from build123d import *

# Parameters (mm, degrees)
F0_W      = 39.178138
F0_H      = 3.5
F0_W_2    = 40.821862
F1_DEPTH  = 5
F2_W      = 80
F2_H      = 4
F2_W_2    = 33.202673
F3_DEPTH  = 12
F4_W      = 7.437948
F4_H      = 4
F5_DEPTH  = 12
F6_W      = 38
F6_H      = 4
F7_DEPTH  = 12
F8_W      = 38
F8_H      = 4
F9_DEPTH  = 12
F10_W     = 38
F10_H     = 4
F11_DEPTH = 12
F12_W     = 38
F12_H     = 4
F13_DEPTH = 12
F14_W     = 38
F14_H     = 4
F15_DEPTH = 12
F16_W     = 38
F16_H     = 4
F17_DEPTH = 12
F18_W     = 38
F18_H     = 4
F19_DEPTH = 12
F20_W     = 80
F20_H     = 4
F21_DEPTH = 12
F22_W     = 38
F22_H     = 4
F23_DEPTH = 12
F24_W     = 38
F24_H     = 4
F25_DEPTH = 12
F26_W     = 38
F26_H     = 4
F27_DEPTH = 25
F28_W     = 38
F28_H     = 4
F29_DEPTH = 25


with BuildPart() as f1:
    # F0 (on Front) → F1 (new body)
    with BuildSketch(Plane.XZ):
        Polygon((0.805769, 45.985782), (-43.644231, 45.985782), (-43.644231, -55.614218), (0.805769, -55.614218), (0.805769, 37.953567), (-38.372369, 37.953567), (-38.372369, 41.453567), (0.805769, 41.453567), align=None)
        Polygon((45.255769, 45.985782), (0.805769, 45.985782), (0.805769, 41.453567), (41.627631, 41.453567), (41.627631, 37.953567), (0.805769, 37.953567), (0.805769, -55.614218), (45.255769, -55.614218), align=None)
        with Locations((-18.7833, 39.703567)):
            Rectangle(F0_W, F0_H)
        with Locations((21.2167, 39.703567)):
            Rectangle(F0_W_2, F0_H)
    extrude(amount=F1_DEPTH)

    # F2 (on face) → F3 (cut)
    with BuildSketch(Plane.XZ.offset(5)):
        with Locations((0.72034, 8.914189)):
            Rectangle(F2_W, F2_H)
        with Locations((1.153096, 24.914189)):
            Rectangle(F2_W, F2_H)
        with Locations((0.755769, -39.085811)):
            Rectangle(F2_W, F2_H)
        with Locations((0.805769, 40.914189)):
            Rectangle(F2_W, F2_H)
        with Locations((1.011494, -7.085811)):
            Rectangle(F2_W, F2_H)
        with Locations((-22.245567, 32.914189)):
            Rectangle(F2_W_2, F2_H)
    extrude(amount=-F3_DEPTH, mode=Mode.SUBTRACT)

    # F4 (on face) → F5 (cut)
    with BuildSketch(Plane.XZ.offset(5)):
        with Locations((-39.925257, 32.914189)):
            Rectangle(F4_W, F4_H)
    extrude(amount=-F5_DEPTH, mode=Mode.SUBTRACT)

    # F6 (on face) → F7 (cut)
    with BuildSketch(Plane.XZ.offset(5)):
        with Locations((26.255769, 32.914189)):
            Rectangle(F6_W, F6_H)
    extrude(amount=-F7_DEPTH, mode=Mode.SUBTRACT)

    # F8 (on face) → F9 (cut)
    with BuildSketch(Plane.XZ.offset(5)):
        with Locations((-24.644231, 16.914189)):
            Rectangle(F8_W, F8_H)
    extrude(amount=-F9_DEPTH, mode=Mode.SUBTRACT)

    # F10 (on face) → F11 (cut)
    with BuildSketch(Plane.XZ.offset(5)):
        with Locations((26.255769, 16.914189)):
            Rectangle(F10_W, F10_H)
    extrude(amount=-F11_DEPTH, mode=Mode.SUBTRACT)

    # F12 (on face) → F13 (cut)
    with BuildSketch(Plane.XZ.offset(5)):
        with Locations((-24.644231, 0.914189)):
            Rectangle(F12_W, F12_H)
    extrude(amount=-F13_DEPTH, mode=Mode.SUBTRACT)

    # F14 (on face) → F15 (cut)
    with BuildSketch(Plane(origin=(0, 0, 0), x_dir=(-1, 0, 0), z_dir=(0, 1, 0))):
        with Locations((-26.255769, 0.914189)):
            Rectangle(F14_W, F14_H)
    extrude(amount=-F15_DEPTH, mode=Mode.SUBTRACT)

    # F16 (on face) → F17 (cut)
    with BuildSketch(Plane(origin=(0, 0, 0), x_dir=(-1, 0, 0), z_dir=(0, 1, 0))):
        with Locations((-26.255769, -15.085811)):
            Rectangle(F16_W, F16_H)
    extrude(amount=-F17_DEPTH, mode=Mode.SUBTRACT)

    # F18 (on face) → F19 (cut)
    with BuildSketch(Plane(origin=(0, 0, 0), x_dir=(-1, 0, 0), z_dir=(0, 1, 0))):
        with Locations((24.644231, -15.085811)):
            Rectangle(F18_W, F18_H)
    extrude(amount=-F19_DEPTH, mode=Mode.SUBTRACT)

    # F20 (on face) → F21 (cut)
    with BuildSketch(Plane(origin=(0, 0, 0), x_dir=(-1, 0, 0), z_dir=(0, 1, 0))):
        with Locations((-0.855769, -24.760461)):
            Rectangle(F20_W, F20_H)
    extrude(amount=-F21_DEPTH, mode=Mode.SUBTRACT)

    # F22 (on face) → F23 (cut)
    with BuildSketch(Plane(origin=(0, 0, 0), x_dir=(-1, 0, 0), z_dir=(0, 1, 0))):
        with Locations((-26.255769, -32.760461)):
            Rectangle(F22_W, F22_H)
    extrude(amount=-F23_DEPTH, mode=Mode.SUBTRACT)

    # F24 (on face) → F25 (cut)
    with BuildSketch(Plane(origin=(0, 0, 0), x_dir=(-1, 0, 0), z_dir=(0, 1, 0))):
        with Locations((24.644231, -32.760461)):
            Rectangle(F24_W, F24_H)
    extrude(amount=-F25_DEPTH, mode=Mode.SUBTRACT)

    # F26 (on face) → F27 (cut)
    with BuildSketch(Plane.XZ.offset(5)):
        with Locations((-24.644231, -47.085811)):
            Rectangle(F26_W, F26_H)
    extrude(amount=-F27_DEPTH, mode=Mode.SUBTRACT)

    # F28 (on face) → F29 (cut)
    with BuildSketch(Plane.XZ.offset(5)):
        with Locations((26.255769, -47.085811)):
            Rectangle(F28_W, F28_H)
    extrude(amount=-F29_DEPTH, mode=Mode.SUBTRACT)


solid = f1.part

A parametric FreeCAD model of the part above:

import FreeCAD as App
import Part
import Sketcher

V = App.Vector
Q = App.Units.Quantity

doc = App.newDocument("Part")
body = doc.addObject("PartDesign::Body", "Body")

# Sketch on XZ plane
sketch1 = doc.addObject("Sketcher::SketchObject", "Sketch")
body.addObject(sketch1)
sketch1.AttachmentSupport = (doc.XZ_Plane, [""])
sketch1.MapMode = "FlatFace"
sketch1.addGeometry([
    Part.LineSegment(V(-43.644231, 45.985782, 0), V(-43.644231, -55.614218, 0)),
    Part.LineSegment(V(-43.644231, -55.614218, 0), V(45.255769, -55.614218, 0)),
    Part.LineSegment(V(45.255769, -55.614218, 0), V(45.255769, 45.985782, 0)),
    Part.LineSegment(V(45.255769, 45.985782, 0), V(-43.644231, 45.985782, 0)),
], False)
sketch1.addConstraint([
    Sketcher.Constraint("Coincident", 0, 2, 1, 1),
    Sketcher.Constraint("Coincident", 1, 2, 2, 1),
    Sketcher.Constraint("Coincident", 2, 2, 3, 1),
    Sketcher.Constraint("Coincident", 3, 2, 0, 1),
    Sketcher.Constraint("Vertical", 0),
    Sketcher.Constraint("Horizontal", 1),
    Sketcher.Constraint("Vertical", 2),
    Sketcher.Constraint("Horizontal", 3),
    Sketcher.Constraint("DistanceX", 1, 1, 1, 2, Q("88.9 mm")),
    Sketcher.Constraint("DistanceY", 0, 2, 0, 1, Q("101.6 mm")),
    Sketcher.Constraint("DistanceX", 0, 2, -1, 1, Q("43.644231 mm")),
    Sketcher.Constraint("DistanceY", 0, 2, -1, 1, Q("55.614218 mm")),
])
pad1 = doc.addObject("PartDesign::Pad", "Pad")
body.addObject(pad1)
pad1.Profile = sketch1
pad1.Length = 5

# Sketch on XZ plane
sketch2 = doc.addObject("Sketcher::SketchObject", "Sketch001")
body.addObject(sketch2)
sketch2.AttachmentSupport = (doc.XZ_Plane, [""])
sketch2.MapMode = "FlatFace"
sketch2.AttachmentOffset = App.Placement(V(0, 0, 5), App.Rotation())
sketch2.addGeometry([
    Part.LineSegment(V(-39.27966, 10.914189, 0), V(-39.27966, 6.914189, 0)),  # 0
    Part.LineSegment(V(-39.27966, 6.914189, 0), V(40.72034, 6.914189, 0)),  # 1
    Part.LineSegment(V(40.72034, 6.914189, 0), V(40.72034, 10.914189, 0)),  # 2
    Part.LineSegment(V(40.72034, 10.914189, 0), V(-39.27966, 10.914189, 0)),  # 3
    Part.LineSegment(V(-38.846904, 26.914189, 0), V(-38.846904, 22.914189, 0)),  # 4
    Part.LineSegment(V(-38.846904, 22.914189, 0), V(41.153096, 22.914189, 0)),  # 5
    Part.LineSegment(V(41.153096, 22.914189, 0), V(41.153096, 26.914189, 0)),  # 6
    Part.LineSegment(V(41.153096, 26.914189, 0), V(-38.846904, 26.914189, 0)),  # 7
    Part.LineSegment(V(-39.244231, -37.085811, 0), V(-39.244231, -41.085811, 0)),  # 8
    Part.LineSegment(V(-39.244231, -41.085811, 0), V(40.755769, -41.085811, 0)),  # 9
    Part.LineSegment(V(40.755769, -41.085811, 0), V(40.755769, -37.085811, 0)),  # 10
    Part.LineSegment(V(40.755769, -37.085811, 0), V(-39.244231, -37.085811, 0)),  # 11
    Part.LineSegment(V(-39.194231, 42.914189, 0), V(-39.194231, 38.914189, 0)),  # 12
    Part.LineSegment(V(-39.194231, 38.914189, 0), V(40.805769, 38.914189, 0)),  # 13
    Part.LineSegment(V(40.805769, 38.914189, 0), V(40.805769, 42.914189, 0)),  # 14
    Part.LineSegment(V(40.805769, 42.914189, 0), V(-39.194231, 42.914189, 0)),  # 15
    Part.LineSegment(V(-38.988506, -5.085811, 0), V(-38.988506, -9.085811, 0)),  # 16
    Part.LineSegment(V(-38.988506, -9.085811, 0), V(41.011494, -9.085811, 0)),  # 17
    Part.LineSegment(V(41.011494, -9.085811, 0), V(41.011494, -5.085811, 0)),  # 18
    Part.LineSegment(V(41.011494, -5.085811, 0), V(-38.988506, -5.085811, 0)),  # 19
    Part.LineSegment(V(-38.846904, 34.914189, 0), V(-38.846904, 30.914189, 0)),  # 20
    Part.LineSegment(V(-38.846904, 30.914189, 0), V(-5.64423, 30.914189, 0)),  # 21
    Part.LineSegment(V(-5.64423, 30.914189, 0), V(-5.64423, 34.914189, 0)),  # 22
    Part.LineSegment(V(-5.64423, 34.914189, 0), V(-38.846904, 34.914189, 0)),  # 23
], False)
sketch2.addConstraint([
    Sketcher.Constraint("Coincident", 0, 2, 1, 1),
    Sketcher.Constraint("Coincident", 1, 2, 2, 1),
    Sketcher.Constraint("Coincident", 2, 2, 3, 1),
    Sketcher.Constraint("Coincident", 3, 2, 0, 1),
    Sketcher.Constraint("Coincident", 4, 2, 5, 1),
    Sketcher.Constraint("Coincident", 5, 2, 6, 1),
    Sketcher.Constraint("Coincident", 6, 2, 7, 1),
    Sketcher.Constraint("Coincident", 7, 2, 4, 1),
    Sketcher.Constraint("Coincident", 8, 2, 9, 1),
    Sketcher.Constraint("Coincident", 9, 2, 10, 1),
    Sketcher.Constraint("Coincident", 10, 2, 11, 1),
    Sketcher.Constraint("Coincident", 11, 2, 8, 1),
    Sketcher.Constraint("Coincident", 12, 2, 13, 1),
    Sketcher.Constraint("Coincident", 13, 2, 14, 1),
    Sketcher.Constraint("Coincident", 14, 2, 15, 1),
    Sketcher.Constraint("Coincident", 15, 2, 12, 1),
    Sketcher.Constraint("Coincident", 16, 2, 17, 1),
    Sketcher.Constraint("Coincident", 17, 2, 18, 1),
    Sketcher.Constraint("Coincident", 18, 2, 19, 1),
    Sketcher.Constraint("Coincident", 19, 2, 16, 1),
    Sketcher.Constraint("Coincident", 20, 2, 21, 1),
    Sketcher.Constraint("Coincident", 21, 2, 22, 1),
    Sketcher.Constraint("Coincident", 22, 2, 23, 1),
    Sketcher.Constraint("Coincident", 23, 2, 20, 1),
    Sketcher.Constraint("Vertical", 0),
    Sketcher.Constraint("Horizontal", 1),
    Sketcher.Constraint("Vertical", 2),
    Sketcher.Constraint("Horizontal", 3),
    Sketcher.Constraint("Vertical", 4),
    Sketcher.Constraint("Horizontal", 5),
    Sketcher.Constraint("Vertical", 6),
    Sketcher.Constraint("Horizontal", 7),
    Sketcher.Constraint("Vertical", 8),
    Sketcher.Constraint("Horizontal", 9),
    Sketcher.Constraint("Vertical", 10),
    Sketcher.Constraint("Horizontal", 11),
    Sketcher.Constraint("Vertical", 12),
    Sketcher.Constraint("Horizontal", 13),
    Sketcher.Constraint("Vertical", 14),
    Sketcher.Constraint("Horizontal", 15),
    Sketcher.Constraint("Vertical", 16),
    Sketcher.Constraint("Horizontal", 17),
    Sketcher.Constraint("Vertical", 18),
    Sketcher.Constraint("Horizontal", 19),
    Sketcher.Constraint("Vertical", 20),
    Sketcher.Constraint("Horizontal", 21),
    Sketcher.Constraint("Vertical", 22),
    Sketcher.Constraint("Horizontal", 23),
    Sketcher.Constraint("Vertical", 7, 2, 20, 2),
    Sketcher.Constraint("Equal", 3, 5),
    Sketcher.Constraint("Equal", 7, 9),
    Sketcher.Constraint("Equal", 11, 13),
    Sketcher.Constraint("Equal", 15, 17),
    Sketcher.Constraint("Equal", 2, 4),
    Sketcher.Constraint("Equal", 6, 8),
    Sketcher.Constraint("Equal", 10, 12),
    Sketcher.Constraint("Equal", 14, 16),
    Sketcher.Constraint("Equal", 18, 20),
    Sketcher.Constraint("DistanceX", 1, 1, 1, 2, Q("80 mm")),
    Sketcher.Constraint("DistanceY", 0, 2, 0, 1, Q("4 mm")),
    Sketcher.Constraint("DistanceY", 3, 2, 4, 2, Q("12 mm")),
    Sketcher.Constraint("DistanceY", 8, 2, 0, 2, Q("48 mm")),
    Sketcher.Constraint("DistanceY", 7, 2, 12, 2, Q("12 mm")),
    Sketcher.Constraint("DistanceY", 16, 2, 0, 2, Q("16 mm")),
    Sketcher.Constraint("DistanceY", 7, 2, 20, 2, Q("4 mm")),
    Sketcher.Constraint("DistanceX", 11, 2, 12, 2, Q("0.05 mm")),
    Sketcher.Constraint("DistanceX", 12, 2, 21, 2, Q("33.550001 mm")),
    Sketcher.Constraint("DistanceX", 16, 2, 4, 2, Q("0.141602 mm")),
    Sketcher.Constraint("DistanceX", 21, 1, 21, 2, Q("33.202673 mm")),
    Sketcher.Constraint("DistanceX", 0, 2, -1, 1, Q("39.27966 mm")),
    Sketcher.Constraint("DistanceY", -1, 1, 0, 2, Q("6.914189 mm")),
    Sketcher.Constraint("DistanceX", 8, 2, -1, 1, Q("39.244231 mm")),
])
pocket1 = doc.addObject("PartDesign::Pocket", "Pocket")
body.addObject(pocket1)
pocket1.Profile = sketch2
pocket1.Length = 12

# Sketch on XZ plane
sketch3 = doc.addObject("Sketcher::SketchObject", "Sketch002")
body.addObject(sketch3)
sketch3.AttachmentSupport = (doc.XZ_Plane, [""])
sketch3.MapMode = "FlatFace"
sketch3.AttachmentOffset = App.Placement(V(0, 0, 5), App.Rotation())
sketch3.addGeometry([
    Part.LineSegment(V(-43.644231, 34.914189, 0), V(-43.644231, 30.914189, 0)),
    Part.LineSegment(V(-43.644231, 30.914189, 0), V(-36.206283, 30.914189, 0)),
    Part.LineSegment(V(-36.206283, 30.914189, 0), V(-36.206283, 34.914189, 0)),
    Part.LineSegment(V(-36.206283, 34.914189, 0), V(-43.644231, 34.914189, 0)),
], False)
sketch3.addConstraint([
    Sketcher.Constraint("Coincident", 0, 2, 1, 1),
    Sketcher.Constraint("Coincident", 1, 2, 2, 1),
    Sketcher.Constraint("Coincident", 2, 2, 3, 1),
    Sketcher.Constraint("Coincident", 3, 2, 0, 1),
    Sketcher.Constraint("Vertical", 0),
    Sketcher.Constraint("Horizontal", 1),
    Sketcher.Constraint("Vertical", 2),
    Sketcher.Constraint("Horizontal", 3),
    Sketcher.Constraint("DistanceY", 0, 2, 0, 1, Q("4 mm")),
    Sketcher.Constraint("DistanceX", 1, 1, 1, 2, Q("7.437948 mm")),
    Sketcher.Constraint("DistanceX", 0, 2, -1, 1, Q("43.644231 mm")),
    Sketcher.Constraint("DistanceY", -1, 1, 0, 2, Q("30.914189 mm")),
])
pocket2 = doc.addObject("PartDesign::Pocket", "Pocket001")
body.addObject(pocket2)
pocket2.Profile = sketch3
pocket2.Length = 12

# Sketch on XZ plane
sketch4 = doc.addObject("Sketcher::SketchObject", "Sketch003")
body.addObject(sketch4)
sketch4.AttachmentSupport = (doc.XZ_Plane, [""])
sketch4.MapMode = "FlatFace"
sketch4.AttachmentOffset = App.Placement(V(0, 0, 5), App.Rotation())
sketch4.addGeometry([
    Part.LineSegment(V(7.255769, 34.914189, 0), V(7.255769, 30.914189, 0)),
    Part.LineSegment(V(7.255769, 30.914189, 0), V(45.255769, 30.914189, 0)),
    Part.LineSegment(V(45.255769, 30.914189, 0), V(45.255769, 34.914189, 0)),
    Part.LineSegment(V(45.255769, 34.914189, 0), V(7.255769, 34.914189, 0)),
], False)
sketch4.addConstraint([
    Sketcher.Constraint("Coincident", 0, 2, 1, 1),
    Sketcher.Constraint("Coincident", 1, 2, 2, 1),
    Sketcher.Constraint("Coincident", 2, 2, 3, 1),
    Sketcher.Constraint("Coincident", 3, 2, 0, 1),
    Sketcher.Constraint("Vertical", 0),
    Sketcher.Constraint("Horizontal", 1),
    Sketcher.Constraint("Vertical", 2),
    Sketcher.Constraint("Horizontal", 3),
    Sketcher.Constraint("DistanceX", 1, 1, 1, 2, Q("38 mm")),
    Sketcher.Constraint("DistanceY", 0, 2, 0, 1, Q("4 mm")),
    Sketcher.Constraint("DistanceX", -1, 1, 0, 2, Q("7.255769 mm")),
    Sketcher.Constraint("DistanceY", -1, 1, 0, 2, Q("30.914189 mm")),
])
pocket3 = doc.addObject("PartDesign::Pocket", "Pocket002")
body.addObject(pocket3)
pocket3.Profile = sketch4
pocket3.Length = 12

# Sketch on XZ plane
sketch5 = doc.addObject("Sketcher::SketchObject", "Sketch004")
body.addObject(sketch5)
sketch5.AttachmentSupport = (doc.XZ_Plane, [""])
sketch5.MapMode = "FlatFace"
sketch5.AttachmentOffset = App.Placement(V(0, 0, 5), App.Rotation())
sketch5.addGeometry([
    Part.LineSegment(V(-43.644231, 18.914189, 0), V(-43.644231, 14.914189, 0)),
    Part.LineSegment(V(-43.644231, 14.914189, 0), V(-5.644231, 14.914189, 0)),
    Part.LineSegment(V(-5.644231, 14.914189, 0), V(-5.644231, 18.914189, 0)),
    Part.LineSegment(V(-5.644231, 18.914189, 0), V(-43.644231, 18.914189, 0)),
], False)
sketch5.addConstraint([
    Sketcher.Constraint("Coincident", 0, 2, 1, 1),
    Sketcher.Constraint("Coincident", 1, 2, 2, 1),
    Sketcher.Constraint("Coincident", 2, 2, 3, 1),
    Sketcher.Constraint("Coincident", 3, 2, 0, 1),
    Sketcher.Constraint("Vertical", 0),
    Sketcher.Constraint("Horizontal", 1),
    Sketcher.Constraint("Vertical", 2),
    Sketcher.Constraint("Horizontal", 3),
    Sketcher.Constraint("DistanceX", 1, 1, 1, 2, Q("38 mm")),
    Sketcher.Constraint("DistanceY", 0, 2, 0, 1, Q("4 mm")),
    Sketcher.Constraint("DistanceX", 0, 2, -1, 1, Q("43.644231 mm")),
    Sketcher.Constraint("DistanceY", -1, 1, 0, 2, Q("14.914189 mm")),
])
pocket4 = doc.addObject("PartDesign::Pocket", "Pocket003")
body.addObject(pocket4)
pocket4.Profile = sketch5
pocket4.Length = 12

# Sketch on XZ plane
sketch6 = doc.addObject("Sketcher::SketchObject", "Sketch005")
body.addObject(sketch6)
sketch6.AttachmentSupport = (doc.XZ_Plane, [""])
sketch6.MapMode = "FlatFace"
sketch6.AttachmentOffset = App.Placement(V(0, 0, 5), App.Rotation())
sketch6.addGeometry([
    Part.LineSegment(V(7.255769, 18.914189, 0), V(7.255769, 14.914189, 0)),
    Part.LineSegment(V(7.255769, 14.914189, 0), V(45.255769, 14.914189, 0)),
    Part.LineSegment(V(45.255769, 14.914189, 0), V(45.255769, 18.914189, 0)),
    Part.LineSegment(V(45.255769, 18.914189, 0), V(7.255769, 18.914189, 0)),
], False)
sketch6.addConstraint([
    Sketcher.Constraint("Coincident", 0, 2, 1, 1),
    Sketcher.Constraint("Coincident", 1, 2, 2, 1),
    Sketcher.Constraint("Coincident", 2, 2, 3, 1),
    Sketcher.Constraint("Coincident", 3, 2, 0, 1),
    Sketcher.Constraint("Vertical", 0),
    Sketcher.Constraint("Horizontal", 1),
    Sketcher.Constraint("Vertical", 2),
    Sketcher.Constraint("Horizontal", 3),
    Sketcher.Constraint("DistanceX", 1, 1, 1, 2, Q("38 mm")),
    Sketcher.Constraint("DistanceY", 0, 2, 0, 1, Q("4 mm")),
    Sketcher.Constraint("DistanceX", -1, 1, 0, 2, Q("7.255769 mm")),
    Sketcher.Constraint("DistanceY", -1, 1, 0, 2, Q("14.914189 mm")),
])
pocket5 = doc.addObject("PartDesign::Pocket", "Pocket004")
body.addObject(pocket5)
pocket5.Profile = sketch6
pocket5.Length = 12

# Sketch on XZ plane
sketch7 = doc.addObject("Sketcher::SketchObject", "Sketch006")
body.addObject(sketch7)
sketch7.AttachmentSupport = (doc.XZ_Plane, [""])
sketch7.MapMode = "FlatFace"
sketch7.AttachmentOffset = App.Placement(V(0, 0, 5), App.Rotation())
sketch7.addGeometry([
    Part.LineSegment(V(-43.644231, 2.914189, 0), V(-43.644231, -1.085811, 0)),
    Part.LineSegment(V(-43.644231, -1.085811, 0), V(-5.644231, -1.085811, 0)),
    Part.LineSegment(V(-5.644231, -1.085811, 0), V(-5.644231, 2.914189, 0)),
    Part.LineSegment(V(-5.644231, 2.914189, 0), V(-43.644231, 2.914189, 0)),
], False)
sketch7.addConstraint([
    Sketcher.Constraint("Coincident", 0, 2, 1, 1),
    Sketcher.Constraint("Coincident", 1, 2, 2, 1),
    Sketcher.Constraint("Coincident", 2, 2, 3, 1),
    Sketcher.Constraint("Coincident", 3, 2, 0, 1),
    Sketcher.Constraint("Vertical", 0),
    Sketcher.Constraint("Horizontal", 1),
    Sketcher.Constraint("Vertical", 2),
    Sketcher.Constraint("Horizontal", 3),
    Sketcher.Constraint("DistanceX", 1, 1, 1, 2, Q("38 mm")),
    Sketcher.Constraint("DistanceY", 0, 2, 0, 1, Q("4 mm")),
    Sketcher.Constraint("DistanceX", 0, 2, -1, 1, Q("43.644231 mm")),
    Sketcher.Constraint("DistanceY", 0, 2, -1, 1, Q("1.085811 mm")),
])
pocket6 = doc.addObject("PartDesign::Pocket", "Pocket005")
body.addObject(pocket6)
pocket6.Profile = sketch7
pocket6.Length = 12

# Sketch on XZ plane
sketch8 = doc.addObject("Sketcher::SketchObject", "Sketch007")
body.addObject(sketch8)
sketch8.AttachmentSupport = (doc.XZ_Plane, [""])
sketch8.MapMode = "FlatFace"
sketch8.addGeometry([
    Part.LineSegment(V(45.255769, 2.914189, 0), V(45.255769, -1.085811, 0)),
    Part.LineSegment(V(45.255769, -1.085811, 0), V(7.255769, -1.085811, 0)),
    Part.LineSegment(V(7.255769, -1.085811, 0), V(7.255769, 2.914189, 0)),
    Part.LineSegment(V(7.255769, 2.914189, 0), V(45.255769, 2.914189, 0)),
], False)
sketch8.addConstraint([
    Sketcher.Constraint("Coincident", 0, 2, 1, 1),
    Sketcher.Constraint("Coincident", 1, 2, 2, 1),
    Sketcher.Constraint("Coincident", 2, 2, 3, 1),
    Sketcher.Constraint("Coincident", 3, 2, 0, 1),
    Sketcher.Constraint("Vertical", 0),
    Sketcher.Constraint("Horizontal", 1),
    Sketcher.Constraint("Vertical", 2),
    Sketcher.Constraint("Horizontal", 3),
    Sketcher.Constraint("DistanceX", 1, 2, 1, 1, Q("38 mm")),
    Sketcher.Constraint("DistanceY", 0, 2, 0, 1, Q("4 mm")),
    Sketcher.Constraint("DistanceX", -1, 1, 0, 2, Q("45.255769 mm")),
    Sketcher.Constraint("DistanceY", 0, 2, -1, 1, Q("1.085811 mm")),
])
pocket7 = doc.addObject("PartDesign::Pocket", "Pocket006")
body.addObject(pocket7)
pocket7.Profile = sketch8
pocket7.Length = 12
pocket7.Reversed = True

# Sketch on XZ plane
sketch9 = doc.addObject("Sketcher::SketchObject", "Sketch008")
body.addObject(sketch9)
sketch9.AttachmentSupport = (doc.XZ_Plane, [""])
sketch9.MapMode = "FlatFace"
sketch9.addGeometry([
    Part.LineSegment(V(45.255769, -13.085811, 0), V(45.255769, -17.085811, 0)),
    Part.LineSegment(V(45.255769, -17.085811, 0), V(7.255769, -17.085811, 0)),
    Part.LineSegment(V(7.255769, -17.085811, 0), V(7.255769, -13.085811, 0)),
    Part.LineSegment(V(7.255769, -13.085811, 0), V(45.255769, -13.085811, 0)),
], False)
sketch9.addConstraint([
    Sketcher.Constraint("Coincident", 0, 2, 1, 1),
    Sketcher.Constraint("Coincident", 1, 2, 2, 1),
    Sketcher.Constraint("Coincident", 2, 2, 3, 1),
    Sketcher.Constraint("Coincident", 3, 2, 0, 1),
    Sketcher.Constraint("Vertical", 0),
    Sketcher.Constraint("Horizontal", 1),
    Sketcher.Constraint("Vertical", 2),
    Sketcher.Constraint("Horizontal", 3),
    Sketcher.Constraint("DistanceX", 1, 2, 1, 1, Q("38 mm")),
    Sketcher.Constraint("DistanceY", 0, 2, 0, 1, Q("4 mm")),
    Sketcher.Constraint("DistanceX", -1, 1, 0, 2, Q("45.255769 mm")),
    Sketcher.Constraint("DistanceY", 0, 2, -1, 1, Q("17.085811 mm")),
])
pocket8 = doc.addObject("PartDesign::Pocket", "Pocket007")
body.addObject(pocket8)
pocket8.Profile = sketch9
pocket8.Length = 12
pocket8.Reversed = True

# Sketch on XZ plane
sketch10 = doc.addObject("Sketcher::SketchObject", "Sketch009")
body.addObject(sketch10)
sketch10.AttachmentSupport = (doc.XZ_Plane, [""])
sketch10.MapMode = "FlatFace"
sketch10.addGeometry([
    Part.LineSegment(V(-5.644231, -13.085811, 0), V(-5.644231, -17.085811, 0)),
    Part.LineSegment(V(-5.644231, -17.085811, 0), V(-43.644231, -17.085811, 0)),
    Part.LineSegment(V(-43.644231, -17.085811, 0), V(-43.644231, -13.085811, 0)),
    Part.LineSegment(V(-43.644231, -13.085811, 0), V(-5.644231, -13.085811, 0)),
], False)
sketch10.addConstraint([
    Sketcher.Constraint("Coincident", 0, 2, 1, 1),
    Sketcher.Constraint("Coincident", 1, 2, 2, 1),
    Sketcher.Constraint("Coincident", 2, 2, 3, 1),
    Sketcher.Constraint("Coincident", 3, 2, 0, 1),
    Sketcher.Constraint("Vertical", 0),
    Sketcher.Constraint("Horizontal", 1),
    Sketcher.Constraint("Vertical", 2),
    Sketcher.Constraint("Horizontal", 3),
    Sketcher.Constraint("DistanceX", 1, 2, 1, 1, Q("38 mm")),
    Sketcher.Constraint("DistanceY", 0, 2, 0, 1, Q("4 mm")),
    Sketcher.Constraint("DistanceX", 0, 2, -1, 1, Q("5.644231 mm")),
    Sketcher.Constraint("DistanceY", 0, 2, -1, 1, Q("17.085811 mm")),
])
pocket9 = doc.addObject("PartDesign::Pocket", "Pocket008")
body.addObject(pocket9)
pocket9.Profile = sketch10
pocket9.Length = 12
pocket9.Reversed = True

# Sketch on XZ plane
sketch11 = doc.addObject("Sketcher::SketchObject", "Sketch010")
body.addObject(sketch11)
sketch11.AttachmentSupport = (doc.XZ_Plane, [""])
sketch11.MapMode = "FlatFace"
sketch11.addGeometry([
    Part.LineSegment(V(40.855769, -22.760461, 0), V(40.855769, -26.760461, 0)),
    Part.LineSegment(V(40.855769, -26.760461, 0), V(-39.144231, -26.760461, 0)),
    Part.LineSegment(V(-39.144231, -26.760461, 0), V(-39.144231, -22.760461, 0)),
    Part.LineSegment(V(-39.144231, -22.760461, 0), V(40.855769, -22.760461, 0)),
], False)
sketch11.addConstraint([
    Sketcher.Constraint("Coincident", 0, 2, 1, 1),
    Sketcher.Constraint("Coincident", 1, 2, 2, 1),
    Sketcher.Constraint("Coincident", 2, 2, 3, 1),
    Sketcher.Constraint("Coincident", 3, 2, 0, 1),
    Sketcher.Constraint("Vertical", 0),
    Sketcher.Constraint("Horizontal", 1),
    Sketcher.Constraint("Vertical", 2),
    Sketcher.Constraint("Horizontal", 3),
    Sketcher.Constraint("DistanceX", 1, 2, 1, 1, Q("80 mm")),
    Sketcher.Constraint("DistanceY", 0, 2, 0, 1, Q("4 mm")),
    Sketcher.Constraint("DistanceX", -1, 1, 0, 2, Q("40.855769 mm")),
    Sketcher.Constraint("DistanceY", 0, 2, -1, 1, Q("26.760461 mm")),
])
pocket10 = doc.addObject("PartDesign::Pocket", "Pocket009")
body.addObject(pocket10)
pocket10.Profile = sketch11
pocket10.Length = 12
pocket10.Reversed = True

# Sketch on XZ plane
sketch12 = doc.addObject("Sketcher::SketchObject", "Sketch011")
body.addObject(sketch12)
sketch12.AttachmentSupport = (doc.XZ_Plane, [""])
sketch12.MapMode = "FlatFace"
sketch12.addGeometry([
    Part.LineSegment(V(45.255769, -30.760461, 0), V(45.255769, -34.760461, 0)),
    Part.LineSegment(V(45.255769, -34.760461, 0), V(7.255769, -34.760461, 0)),
    Part.LineSegment(V(7.255769, -34.760461, 0), V(7.255769, -30.760461, 0)),
    Part.LineSegment(V(7.255769, -30.760461, 0), V(45.255769, -30.760461, 0)),
], False)
sketch12.addConstraint([
    Sketcher.Constraint("Coincident", 0, 2, 1, 1),
    Sketcher.Constraint("Coincident", 1, 2, 2, 1),
    Sketcher.Constraint("Coincident", 2, 2, 3, 1),
    Sketcher.Constraint("Coincident", 3, 2, 0, 1),
    Sketcher.Constraint("Vertical", 0),
    Sketcher.Constraint("Horizontal", 1),
    Sketcher.Constraint("Vertical", 2),
    Sketcher.Constraint("Horizontal", 3),
    Sketcher.Constraint("DistanceX", 1, 2, 1, 1, Q("38 mm")),
    Sketcher.Constraint("DistanceY", 0, 2, 0, 1, Q("4 mm")),
    Sketcher.Constraint("DistanceX", -1, 1, 0, 2, Q("45.255769 mm")),
    Sketcher.Constraint("DistanceY", 0, 2, -1, 1, Q("34.760461 mm")),
])
pocket11 = doc.addObject("PartDesign::Pocket", "Pocket010")
body.addObject(pocket11)
pocket11.Profile = sketch12
pocket11.Length = 12
pocket11.Reversed = True

# Sketch on XZ plane
sketch13 = doc.addObject("Sketcher::SketchObject", "Sketch012")
body.addObject(sketch13)
sketch13.AttachmentSupport = (doc.XZ_Plane, [""])
sketch13.MapMode = "FlatFace"
sketch13.addGeometry([
    Part.LineSegment(V(-5.644231, -30.760461, 0), V(-5.644231, -34.760461, 0)),
    Part.LineSegment(V(-5.644231, -34.760461, 0), V(-43.644231, -34.760461, 0)),
    Part.LineSegment(V(-43.644231, -34.760461, 0), V(-43.644231, -30.760461, 0)),
    Part.LineSegment(V(-43.644231, -30.760461, 0), V(-5.644231, -30.760461, 0)),
], False)
sketch13.addConstraint([
    Sketcher.Constraint("Coincident", 0, 2, 1, 1),
    Sketcher.Constraint("Coincident", 1, 2, 2, 1),
    Sketcher.Constraint("Coincident", 2, 2, 3, 1),
    Sketcher.Constraint("Coincident", 3, 2, 0, 1),
    Sketcher.Constraint("Vertical", 0),
    Sketcher.Constraint("Horizontal", 1),
    Sketcher.Constraint("Vertical", 2),
    Sketcher.Constraint("Horizontal", 3),
    Sketcher.Constraint("DistanceX", 1, 2, 1, 1, Q("38 mm")),
    Sketcher.Constraint("DistanceY", 0, 2, 0, 1, Q("4 mm")),
    Sketcher.Constraint("DistanceX", 0, 2, -1, 1, Q("5.644231 mm")),
    Sketcher.Constraint("DistanceY", 0, 2, -1, 1, Q("34.760461 mm")),
])
pocket12 = doc.addObject("PartDesign::Pocket", "Pocket011")
body.addObject(pocket12)
pocket12.Profile = sketch13
pocket12.Length = 12
pocket12.Reversed = True

# Sketch on XZ plane
sketch14 = doc.addObject("Sketcher::SketchObject", "Sketch013")
body.addObject(sketch14)
sketch14.AttachmentSupport = (doc.XZ_Plane, [""])
sketch14.MapMode = "FlatFace"
sketch14.AttachmentOffset = App.Placement(V(0, 0, 5), App.Rotation())
sketch14.addGeometry([
    Part.LineSegment(V(-43.644231, -45.085811, 0), V(-43.644231, -49.085811, 0)),
    Part.LineSegment(V(-43.644231, -49.085811, 0), V(-5.644231, -49.085811, 0)),
    Part.LineSegment(V(-5.644231, -49.085811, 0), V(-5.644231, -45.085811, 0)),
    Part.LineSegment(V(-5.644231, -45.085811, 0), V(-43.644231, -45.085811, 0)),
], False)
sketch14.addConstraint([
    Sketcher.Constraint("Coincident", 0, 2, 1, 1),
    Sketcher.Constraint("Coincident", 1, 2, 2, 1),
    Sketcher.Constraint("Coincident", 2, 2, 3, 1),
    Sketcher.Constraint("Coincident", 3, 2, 0, 1),
    Sketcher.Constraint("Vertical", 0),
    Sketcher.Constraint("Horizontal", 1),
    Sketcher.Constraint("Vertical", 2),
    Sketcher.Constraint("Horizontal", 3),
    Sketcher.Constraint("DistanceX", 1, 1, 1, 2, Q("38 mm")),
    Sketcher.Constraint("DistanceY", 0, 2, 0, 1, Q("4 mm")),
    Sketcher.Constraint("DistanceX", 0, 2, -1, 1, Q("43.644231 mm")),
    Sketcher.Constraint("DistanceY", 0, 2, -1, 1, Q("49.085811 mm")),
])
pocket13 = doc.addObject("PartDesign::Pocket", "Pocket012")
body.addObject(pocket13)
pocket13.Profile = sketch14
pocket13.Length = 25

# Sketch on XZ plane
sketch15 = doc.addObject("Sketcher::SketchObject", "Sketch014")
body.addObject(sketch15)
sketch15.AttachmentSupport = (doc.XZ_Plane, [""])
sketch15.MapMode = "FlatFace"
sketch15.AttachmentOffset = App.Placement(V(0, 0, 5), App.Rotation())
sketch15.addGeometry([
    Part.LineSegment(V(7.255769, -45.085811, 0), V(7.255769, -49.085811, 0)),
    Part.LineSegment(V(7.255769, -49.085811, 0), V(45.255769, -49.085811, 0)),
    Part.LineSegment(V(45.255769, -49.085811, 0), V(45.255769, -45.085811, 0)),
    Part.LineSegment(V(45.255769, -45.085811, 0), V(7.255769, -45.085811, 0)),
], False)
sketch15.addConstraint([
    Sketcher.Constraint("Coincident", 0, 2, 1, 1),
    Sketcher.Constraint("Coincident", 1, 2, 2, 1),
    Sketcher.Constraint("Coincident", 2, 2, 3, 1),
    Sketcher.Constraint("Coincident", 3, 2, 0, 1),
    Sketcher.Constraint("Vertical", 0),
    Sketcher.Constraint("Horizontal", 1),
    Sketcher.Constraint("Vertical", 2),
    Sketcher.Constraint("Horizontal", 3),
    Sketcher.Constraint("DistanceX", 1, 1, 1, 2, Q("38 mm")),
    Sketcher.Constraint("DistanceY", 0, 2, 0, 1, Q("4 mm")),
    Sketcher.Constraint("DistanceX", -1, 1, 0, 2, Q("7.255769 mm")),
    Sketcher.Constraint("DistanceY", 0, 2, -1, 1, Q("49.085811 mm")),
])
pocket14 = doc.addObject("PartDesign::Pocket", "Pocket013")
body.addObject(pocket14)
pocket14.Profile = sketch15
pocket14.Length = 25

doc.recompute()
